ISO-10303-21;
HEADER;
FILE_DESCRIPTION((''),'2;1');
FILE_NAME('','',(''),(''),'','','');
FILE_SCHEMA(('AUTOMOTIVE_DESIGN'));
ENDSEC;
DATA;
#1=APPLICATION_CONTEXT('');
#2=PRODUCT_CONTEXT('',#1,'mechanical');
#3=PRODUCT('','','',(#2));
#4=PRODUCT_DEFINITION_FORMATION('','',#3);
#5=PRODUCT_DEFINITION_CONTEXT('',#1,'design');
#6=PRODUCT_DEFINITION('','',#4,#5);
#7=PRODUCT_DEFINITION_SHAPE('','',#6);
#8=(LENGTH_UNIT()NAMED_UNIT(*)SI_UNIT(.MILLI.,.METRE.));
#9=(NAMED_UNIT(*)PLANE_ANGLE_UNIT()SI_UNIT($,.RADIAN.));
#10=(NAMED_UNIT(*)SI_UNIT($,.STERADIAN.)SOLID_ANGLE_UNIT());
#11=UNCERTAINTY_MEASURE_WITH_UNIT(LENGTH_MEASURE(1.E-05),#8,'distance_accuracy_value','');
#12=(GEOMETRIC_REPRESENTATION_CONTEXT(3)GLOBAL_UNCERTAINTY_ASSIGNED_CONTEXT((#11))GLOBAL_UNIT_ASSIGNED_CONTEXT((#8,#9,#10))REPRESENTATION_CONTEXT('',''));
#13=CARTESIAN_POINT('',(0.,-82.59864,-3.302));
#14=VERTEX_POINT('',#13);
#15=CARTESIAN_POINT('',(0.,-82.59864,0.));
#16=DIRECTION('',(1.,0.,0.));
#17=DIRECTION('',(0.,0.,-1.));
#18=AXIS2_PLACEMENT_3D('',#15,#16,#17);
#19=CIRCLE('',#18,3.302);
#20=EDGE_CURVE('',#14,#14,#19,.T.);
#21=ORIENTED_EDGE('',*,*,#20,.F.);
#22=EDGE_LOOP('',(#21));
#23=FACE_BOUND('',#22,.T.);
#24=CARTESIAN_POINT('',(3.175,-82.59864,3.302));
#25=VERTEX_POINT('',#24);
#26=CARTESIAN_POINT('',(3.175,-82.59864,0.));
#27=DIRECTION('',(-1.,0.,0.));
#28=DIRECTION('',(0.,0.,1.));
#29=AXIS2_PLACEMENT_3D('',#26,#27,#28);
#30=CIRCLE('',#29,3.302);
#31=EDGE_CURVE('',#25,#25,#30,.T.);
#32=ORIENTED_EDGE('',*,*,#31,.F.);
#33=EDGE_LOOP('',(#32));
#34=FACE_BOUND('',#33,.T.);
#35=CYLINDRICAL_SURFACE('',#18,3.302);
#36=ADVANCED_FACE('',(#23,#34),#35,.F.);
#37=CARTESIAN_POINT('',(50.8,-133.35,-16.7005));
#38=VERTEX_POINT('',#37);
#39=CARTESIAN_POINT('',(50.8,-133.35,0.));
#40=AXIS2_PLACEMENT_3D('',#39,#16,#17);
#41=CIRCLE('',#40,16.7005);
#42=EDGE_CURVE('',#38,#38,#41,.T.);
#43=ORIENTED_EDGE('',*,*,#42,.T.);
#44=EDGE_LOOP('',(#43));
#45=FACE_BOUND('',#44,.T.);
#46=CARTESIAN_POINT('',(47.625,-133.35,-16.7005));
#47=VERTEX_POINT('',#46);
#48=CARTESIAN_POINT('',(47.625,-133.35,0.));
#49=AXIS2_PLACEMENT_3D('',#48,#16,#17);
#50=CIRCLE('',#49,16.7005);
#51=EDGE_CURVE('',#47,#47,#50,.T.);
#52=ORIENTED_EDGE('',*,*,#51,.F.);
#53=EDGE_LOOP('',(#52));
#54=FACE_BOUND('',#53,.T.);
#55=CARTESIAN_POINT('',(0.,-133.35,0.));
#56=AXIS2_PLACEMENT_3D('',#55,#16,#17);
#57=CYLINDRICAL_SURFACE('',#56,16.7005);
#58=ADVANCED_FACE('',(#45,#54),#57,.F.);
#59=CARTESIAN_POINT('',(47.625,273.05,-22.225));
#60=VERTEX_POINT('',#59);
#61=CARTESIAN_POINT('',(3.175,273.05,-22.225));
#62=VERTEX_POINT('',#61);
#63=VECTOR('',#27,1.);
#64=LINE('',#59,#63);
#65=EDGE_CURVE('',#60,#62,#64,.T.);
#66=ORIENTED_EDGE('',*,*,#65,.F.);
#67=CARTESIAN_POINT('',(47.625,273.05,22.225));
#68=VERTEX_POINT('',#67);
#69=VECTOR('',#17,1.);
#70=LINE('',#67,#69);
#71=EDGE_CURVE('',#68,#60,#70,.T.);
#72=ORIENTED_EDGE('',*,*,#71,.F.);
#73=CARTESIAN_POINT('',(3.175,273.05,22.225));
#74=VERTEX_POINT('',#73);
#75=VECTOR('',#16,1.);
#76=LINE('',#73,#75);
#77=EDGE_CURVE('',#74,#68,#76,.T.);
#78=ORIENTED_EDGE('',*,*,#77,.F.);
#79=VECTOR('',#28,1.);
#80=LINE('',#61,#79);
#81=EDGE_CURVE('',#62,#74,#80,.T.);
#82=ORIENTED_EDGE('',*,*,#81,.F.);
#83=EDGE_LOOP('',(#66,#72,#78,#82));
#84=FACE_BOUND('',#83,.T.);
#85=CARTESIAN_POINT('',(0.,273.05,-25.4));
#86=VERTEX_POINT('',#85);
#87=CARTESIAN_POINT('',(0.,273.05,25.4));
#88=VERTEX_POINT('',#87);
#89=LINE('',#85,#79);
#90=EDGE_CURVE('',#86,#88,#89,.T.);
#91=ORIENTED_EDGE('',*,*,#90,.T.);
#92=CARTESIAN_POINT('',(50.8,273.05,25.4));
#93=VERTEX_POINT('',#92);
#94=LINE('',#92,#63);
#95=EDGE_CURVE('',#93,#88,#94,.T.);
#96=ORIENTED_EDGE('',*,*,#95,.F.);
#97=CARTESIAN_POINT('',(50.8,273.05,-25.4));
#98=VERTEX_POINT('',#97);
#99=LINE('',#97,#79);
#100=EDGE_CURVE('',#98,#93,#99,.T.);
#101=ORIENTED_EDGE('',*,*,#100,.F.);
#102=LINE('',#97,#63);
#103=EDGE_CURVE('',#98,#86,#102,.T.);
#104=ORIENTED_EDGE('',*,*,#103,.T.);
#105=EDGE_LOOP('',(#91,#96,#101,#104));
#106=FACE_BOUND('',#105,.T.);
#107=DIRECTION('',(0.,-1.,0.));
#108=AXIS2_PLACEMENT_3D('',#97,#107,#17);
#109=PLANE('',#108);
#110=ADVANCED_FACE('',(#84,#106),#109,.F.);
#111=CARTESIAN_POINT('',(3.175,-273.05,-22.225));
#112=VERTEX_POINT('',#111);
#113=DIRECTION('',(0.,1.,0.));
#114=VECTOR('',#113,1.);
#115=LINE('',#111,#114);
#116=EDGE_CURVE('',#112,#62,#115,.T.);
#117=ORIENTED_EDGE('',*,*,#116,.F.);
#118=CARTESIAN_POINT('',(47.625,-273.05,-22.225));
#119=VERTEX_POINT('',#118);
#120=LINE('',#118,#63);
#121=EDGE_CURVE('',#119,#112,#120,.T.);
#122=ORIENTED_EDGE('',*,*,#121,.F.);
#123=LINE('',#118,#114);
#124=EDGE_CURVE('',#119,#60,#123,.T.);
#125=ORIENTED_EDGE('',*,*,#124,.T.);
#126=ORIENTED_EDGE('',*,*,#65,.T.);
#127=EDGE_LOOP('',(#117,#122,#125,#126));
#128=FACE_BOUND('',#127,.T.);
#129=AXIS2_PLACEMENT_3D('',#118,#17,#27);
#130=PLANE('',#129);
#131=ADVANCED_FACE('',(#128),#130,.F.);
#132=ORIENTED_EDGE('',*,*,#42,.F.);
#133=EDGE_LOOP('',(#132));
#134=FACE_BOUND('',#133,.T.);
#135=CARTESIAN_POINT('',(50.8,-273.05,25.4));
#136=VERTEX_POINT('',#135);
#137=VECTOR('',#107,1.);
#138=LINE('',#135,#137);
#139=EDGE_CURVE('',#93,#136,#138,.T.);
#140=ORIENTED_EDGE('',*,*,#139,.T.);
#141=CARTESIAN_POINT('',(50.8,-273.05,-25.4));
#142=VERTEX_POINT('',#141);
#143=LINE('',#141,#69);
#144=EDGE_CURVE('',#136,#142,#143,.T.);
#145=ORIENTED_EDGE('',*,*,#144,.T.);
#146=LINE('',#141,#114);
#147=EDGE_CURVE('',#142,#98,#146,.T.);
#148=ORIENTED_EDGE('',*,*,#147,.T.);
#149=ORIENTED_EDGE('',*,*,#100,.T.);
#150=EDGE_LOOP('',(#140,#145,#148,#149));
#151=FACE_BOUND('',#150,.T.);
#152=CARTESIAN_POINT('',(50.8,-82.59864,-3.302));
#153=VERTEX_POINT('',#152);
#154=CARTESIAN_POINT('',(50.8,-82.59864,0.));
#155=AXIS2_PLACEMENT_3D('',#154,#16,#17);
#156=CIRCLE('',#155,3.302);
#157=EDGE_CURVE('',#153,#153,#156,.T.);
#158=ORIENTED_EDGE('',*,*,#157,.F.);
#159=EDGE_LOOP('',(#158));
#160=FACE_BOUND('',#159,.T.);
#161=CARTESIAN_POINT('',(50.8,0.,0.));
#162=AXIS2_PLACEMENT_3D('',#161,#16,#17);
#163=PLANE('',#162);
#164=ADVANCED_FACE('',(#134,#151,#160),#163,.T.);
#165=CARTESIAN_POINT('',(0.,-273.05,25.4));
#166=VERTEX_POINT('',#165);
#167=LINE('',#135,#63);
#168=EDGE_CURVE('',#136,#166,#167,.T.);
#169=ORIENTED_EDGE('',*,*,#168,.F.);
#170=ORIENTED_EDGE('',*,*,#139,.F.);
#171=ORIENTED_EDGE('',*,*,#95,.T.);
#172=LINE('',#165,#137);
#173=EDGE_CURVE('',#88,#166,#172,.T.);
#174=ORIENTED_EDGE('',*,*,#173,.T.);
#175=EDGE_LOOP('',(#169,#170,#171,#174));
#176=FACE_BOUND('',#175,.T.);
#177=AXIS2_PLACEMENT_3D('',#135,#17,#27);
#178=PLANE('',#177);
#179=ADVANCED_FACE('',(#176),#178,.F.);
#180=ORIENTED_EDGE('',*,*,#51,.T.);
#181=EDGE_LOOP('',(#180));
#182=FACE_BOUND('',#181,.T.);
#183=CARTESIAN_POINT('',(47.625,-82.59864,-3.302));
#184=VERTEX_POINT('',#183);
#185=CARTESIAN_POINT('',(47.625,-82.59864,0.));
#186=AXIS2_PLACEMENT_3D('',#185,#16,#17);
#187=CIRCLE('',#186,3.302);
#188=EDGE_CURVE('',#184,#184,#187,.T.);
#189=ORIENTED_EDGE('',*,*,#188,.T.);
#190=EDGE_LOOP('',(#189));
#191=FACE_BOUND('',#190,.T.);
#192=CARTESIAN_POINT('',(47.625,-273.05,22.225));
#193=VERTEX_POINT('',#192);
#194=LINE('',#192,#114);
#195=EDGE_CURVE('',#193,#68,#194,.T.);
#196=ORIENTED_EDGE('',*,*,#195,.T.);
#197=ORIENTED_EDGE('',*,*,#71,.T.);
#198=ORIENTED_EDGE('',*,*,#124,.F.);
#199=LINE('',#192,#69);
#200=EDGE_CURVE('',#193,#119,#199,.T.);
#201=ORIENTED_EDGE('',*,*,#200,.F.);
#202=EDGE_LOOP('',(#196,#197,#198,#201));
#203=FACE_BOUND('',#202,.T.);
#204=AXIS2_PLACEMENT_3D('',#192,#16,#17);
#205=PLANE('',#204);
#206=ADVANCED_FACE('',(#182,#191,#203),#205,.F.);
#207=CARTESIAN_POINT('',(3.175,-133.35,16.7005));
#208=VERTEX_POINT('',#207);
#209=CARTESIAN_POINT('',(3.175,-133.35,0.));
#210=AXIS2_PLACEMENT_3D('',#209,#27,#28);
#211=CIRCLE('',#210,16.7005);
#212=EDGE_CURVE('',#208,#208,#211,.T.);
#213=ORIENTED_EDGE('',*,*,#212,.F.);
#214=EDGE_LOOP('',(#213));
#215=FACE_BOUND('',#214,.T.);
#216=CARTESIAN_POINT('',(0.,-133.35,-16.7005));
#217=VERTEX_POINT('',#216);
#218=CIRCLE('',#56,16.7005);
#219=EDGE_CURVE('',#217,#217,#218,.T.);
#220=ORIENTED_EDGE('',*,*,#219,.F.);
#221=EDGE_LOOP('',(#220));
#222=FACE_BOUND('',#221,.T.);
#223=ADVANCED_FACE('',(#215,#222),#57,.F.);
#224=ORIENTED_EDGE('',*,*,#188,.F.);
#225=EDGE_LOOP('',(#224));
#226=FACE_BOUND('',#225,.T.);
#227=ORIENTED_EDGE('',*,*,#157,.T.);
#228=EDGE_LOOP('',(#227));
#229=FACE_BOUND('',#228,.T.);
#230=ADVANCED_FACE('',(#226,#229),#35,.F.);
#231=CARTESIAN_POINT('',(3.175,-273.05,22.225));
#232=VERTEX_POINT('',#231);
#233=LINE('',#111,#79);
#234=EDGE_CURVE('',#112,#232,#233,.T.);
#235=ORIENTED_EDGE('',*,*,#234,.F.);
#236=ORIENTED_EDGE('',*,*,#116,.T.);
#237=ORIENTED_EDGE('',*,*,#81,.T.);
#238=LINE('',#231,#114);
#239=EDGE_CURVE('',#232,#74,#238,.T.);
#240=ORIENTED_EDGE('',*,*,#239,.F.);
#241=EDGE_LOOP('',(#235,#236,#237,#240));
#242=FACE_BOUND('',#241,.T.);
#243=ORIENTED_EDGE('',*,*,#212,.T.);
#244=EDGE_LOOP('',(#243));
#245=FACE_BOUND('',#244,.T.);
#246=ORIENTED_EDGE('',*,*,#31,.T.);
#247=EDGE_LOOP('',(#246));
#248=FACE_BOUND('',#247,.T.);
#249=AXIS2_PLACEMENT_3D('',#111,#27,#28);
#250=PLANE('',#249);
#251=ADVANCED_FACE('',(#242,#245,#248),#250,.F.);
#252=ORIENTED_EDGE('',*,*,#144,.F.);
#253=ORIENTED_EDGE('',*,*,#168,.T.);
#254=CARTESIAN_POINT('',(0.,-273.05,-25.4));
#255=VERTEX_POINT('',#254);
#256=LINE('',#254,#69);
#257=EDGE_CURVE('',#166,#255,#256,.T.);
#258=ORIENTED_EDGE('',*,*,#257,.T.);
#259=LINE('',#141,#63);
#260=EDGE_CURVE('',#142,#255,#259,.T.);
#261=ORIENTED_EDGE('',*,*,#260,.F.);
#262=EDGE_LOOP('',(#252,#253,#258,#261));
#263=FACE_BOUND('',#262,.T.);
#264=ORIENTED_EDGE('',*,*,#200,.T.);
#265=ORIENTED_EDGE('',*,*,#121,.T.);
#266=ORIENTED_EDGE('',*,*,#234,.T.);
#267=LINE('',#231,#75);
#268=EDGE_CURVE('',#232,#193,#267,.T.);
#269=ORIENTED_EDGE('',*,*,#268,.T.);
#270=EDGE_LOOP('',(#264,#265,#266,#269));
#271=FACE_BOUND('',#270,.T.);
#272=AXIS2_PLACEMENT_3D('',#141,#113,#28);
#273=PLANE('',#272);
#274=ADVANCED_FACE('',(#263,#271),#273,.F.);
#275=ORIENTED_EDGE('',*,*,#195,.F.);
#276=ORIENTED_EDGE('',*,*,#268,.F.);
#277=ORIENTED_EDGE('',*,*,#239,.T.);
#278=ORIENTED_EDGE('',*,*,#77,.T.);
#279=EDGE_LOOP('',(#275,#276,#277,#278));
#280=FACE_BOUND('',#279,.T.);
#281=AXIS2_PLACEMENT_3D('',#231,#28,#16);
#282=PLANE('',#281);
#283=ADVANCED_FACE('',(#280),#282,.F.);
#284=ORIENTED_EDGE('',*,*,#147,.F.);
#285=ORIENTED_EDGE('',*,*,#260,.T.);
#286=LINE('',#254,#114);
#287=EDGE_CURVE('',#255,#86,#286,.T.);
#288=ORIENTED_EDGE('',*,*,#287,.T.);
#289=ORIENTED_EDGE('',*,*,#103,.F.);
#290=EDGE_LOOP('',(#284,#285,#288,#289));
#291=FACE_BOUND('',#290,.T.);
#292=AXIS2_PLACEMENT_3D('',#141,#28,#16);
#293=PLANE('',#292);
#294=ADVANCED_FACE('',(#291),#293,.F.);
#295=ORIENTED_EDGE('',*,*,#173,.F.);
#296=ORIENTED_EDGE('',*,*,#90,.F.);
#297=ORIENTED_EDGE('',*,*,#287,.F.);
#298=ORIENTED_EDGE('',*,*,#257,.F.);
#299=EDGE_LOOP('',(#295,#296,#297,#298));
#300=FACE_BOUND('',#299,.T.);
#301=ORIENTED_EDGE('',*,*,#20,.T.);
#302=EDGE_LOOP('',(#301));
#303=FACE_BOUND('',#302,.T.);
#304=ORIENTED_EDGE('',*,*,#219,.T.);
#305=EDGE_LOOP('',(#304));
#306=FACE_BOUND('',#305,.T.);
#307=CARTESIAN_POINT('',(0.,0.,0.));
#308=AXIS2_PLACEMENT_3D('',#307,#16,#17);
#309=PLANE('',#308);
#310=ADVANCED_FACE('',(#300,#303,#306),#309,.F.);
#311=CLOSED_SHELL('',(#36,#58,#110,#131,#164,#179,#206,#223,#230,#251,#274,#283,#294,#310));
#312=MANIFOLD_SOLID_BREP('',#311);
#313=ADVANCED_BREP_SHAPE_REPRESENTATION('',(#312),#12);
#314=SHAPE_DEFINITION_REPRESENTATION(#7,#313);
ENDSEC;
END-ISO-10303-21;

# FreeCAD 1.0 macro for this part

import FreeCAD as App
import Part
import Sketcher

V = App.Vector
Q = App.Units.Quantity


def add_polygon(sketch, points):
    """Adds a closed chain of lines whose ends are joined by coincident constraints."""
    first, n = sketch.GeometryCount, len(points)
    for a, b in zip(points, points[1:] + points[:1]):
        sketch.addGeometry(Part.LineSegment(App.Vector(*a, 0), App.Vector(*b, 0)), False)
    for i in range(n):
        sketch.addConstraint(Sketcher.Constraint("Coincident", first + i, 2, first + (i + 1) % n, 1))

doc = App.newDocument("Part")
params = doc.addObject("Spreadsheet::Sheet", "Params")
for row, (alias, value) in enumerate([
    ("sketch1_height", "2 in"),
    ("sketch1_width", "21.5 in"),
    ("pad1_length", "2 in"),
    ("sketch2_width", "1.75 in"),
    ("sketch3_diameter", "0.26 in"),
    ("sketch3_diameter2", "1.315 in"),
], start=1):
    params.set(f"A{row}", alias)
    params.set(f"B{row}", "=" + value)
    params.setAlias(f"B{row}", alias)

body = doc.addObject("PartDesign::Body", "Body")

sketch1 = body.newObject("Sketcher::SketchObject", "Sketch")
sketch1.AttachmentSupport = (doc.getObject("YZ_Plane"), [""])
sketch1.MapMode = "FlatFace"
add_polygon(sketch1, [(273, 25), (-273, 25), (-273, -25), (273, -25)])
sketch1.addConstraint(Sketcher.Constraint("Horizontal", 0))
sketch1.addConstraint(Sketcher.Constraint("Vertical", 1))
sketch1.addConstraint(Sketcher.Constraint("Horizontal", 2))
sketch1.addConstraint(Sketcher.Constraint("Vertical", 3))
sketch1.addConstraint(Sketcher.Constraint("Symmetric", 0, 2, 2, 2, -1, 1))
sketch1.addConstraint(Sketcher.Constraint("DistanceY", 1, 2, 1, 1, Q("2 in")))
sketch1.addConstraint(Sketcher.Constraint("DistanceX", 0, 2, 0, 1, Q("21.5 in")))
sketch1.setExpression("Constraints[9]", "Params.sketch1_height")
sketch1.setExpression("Constraints[10]", "Params.sketch1_width")
pad1 = body.newObject("PartDesign::Pad", "Pad")
pad1.Profile = sketch1
pad1.setExpression("Length", "Params.pad1_length")

sketch2 = body.newObject("Sketcher::SketchObject", "Sketch001")
sketch2.AttachmentSupport = (doc.getObject("XZ_Plane"), [""])
sketch2.MapMode = "FlatFace"
sketch2.AttachmentOffset = App.Placement(V(0, 0, -10.75 * 25.4), App.Rotation())
add_polygon(sketch2, [(3, -22), (3, 22), (48, 22), (48, -22)])
sketch2.addConstraint(Sketcher.Constraint("Vertical", 0))
sketch2.addConstraint(Sketcher.Constraint("Horizontal", 1))
sketch2.addConstraint(Sketcher.Constraint("Vertical", 2))
sketch2.addConstraint(Sketcher.Constraint("Horizontal", 3))
sketch2.addConstraint(Sketcher.Constraint("Equal", 3, 0))
sketch2.addConstraint(Sketcher.Constraint("DistanceX", 1, 1, 1, 2, Q("1.75 in")))
sketch2.addConstraint(Sketcher.Constraint("DistanceX", -1, 1, 0, 2, Q("0.125 in")))
sketch2.addConstraint(Sketcher.Constraint("DistanceY", -1, 1, 0, 2, Q("0.875 in")))
sketch2.setExpression("Constraints[9]", "Params.sketch2_width")
pocket1 = body.newObject("PartDesign::Pocket", "Pocket")
pocket1.Profile = sketch2
pocket1.Type = "ThroughAll"
pocket1.Reversed = True

sketch3 = body.newObject("Sketcher::SketchObject", "Sketch002")
sketch3.AttachmentSupport = (doc.getObject("YZ_Plane"), [""])
sketch3.MapMode = "FlatFace"
sketch3.AttachmentOffset = App.Placement(V(0, 0, 2 * 25.4), App.Rotation())
sketch3.addGeometry(Part.Circle(V(-133.3, 0, 0), V(0, 0, 1), 16.7), False)
sketch3.addGeometry(Part.Circle(V(-82.6, 0, 0), V(0, 0, 1), 3.3), False)
sketch3.addConstraint(Sketcher.Constraint("PointOnObject", 0, 3, -1))
sketch3.addConstraint(Sketcher.Constraint("PointOnObject", 1, 3, -1))
sketch3.addConstraint(Sketcher.Constraint("Diameter", 1, Q("0.26 in")))
sketch3.addConstraint(Sketcher.Constraint("Diameter", 0, Q("1.315 in")))
sketch3.addConstraint(Sketcher.Constraint("DistanceX", 0, 3, -1, 1, Q("5.25 in")))
sketch3.addConstraint(Sketcher.Constraint("DistanceX", 1, 3, -1, 1, 82.59864))
sketch3.setExpression("Constraints[2]", "Params.sketch3_diameter")
sketch3.setExpression("Constraints[3]", "Params.sketch3_diameter2")
pocket2 = body.newObject("PartDesign::Pocket", "Pocket001")
pocket2.Profile = sketch3
pocket2.Type = "ThroughAll"

doc.recompute()
